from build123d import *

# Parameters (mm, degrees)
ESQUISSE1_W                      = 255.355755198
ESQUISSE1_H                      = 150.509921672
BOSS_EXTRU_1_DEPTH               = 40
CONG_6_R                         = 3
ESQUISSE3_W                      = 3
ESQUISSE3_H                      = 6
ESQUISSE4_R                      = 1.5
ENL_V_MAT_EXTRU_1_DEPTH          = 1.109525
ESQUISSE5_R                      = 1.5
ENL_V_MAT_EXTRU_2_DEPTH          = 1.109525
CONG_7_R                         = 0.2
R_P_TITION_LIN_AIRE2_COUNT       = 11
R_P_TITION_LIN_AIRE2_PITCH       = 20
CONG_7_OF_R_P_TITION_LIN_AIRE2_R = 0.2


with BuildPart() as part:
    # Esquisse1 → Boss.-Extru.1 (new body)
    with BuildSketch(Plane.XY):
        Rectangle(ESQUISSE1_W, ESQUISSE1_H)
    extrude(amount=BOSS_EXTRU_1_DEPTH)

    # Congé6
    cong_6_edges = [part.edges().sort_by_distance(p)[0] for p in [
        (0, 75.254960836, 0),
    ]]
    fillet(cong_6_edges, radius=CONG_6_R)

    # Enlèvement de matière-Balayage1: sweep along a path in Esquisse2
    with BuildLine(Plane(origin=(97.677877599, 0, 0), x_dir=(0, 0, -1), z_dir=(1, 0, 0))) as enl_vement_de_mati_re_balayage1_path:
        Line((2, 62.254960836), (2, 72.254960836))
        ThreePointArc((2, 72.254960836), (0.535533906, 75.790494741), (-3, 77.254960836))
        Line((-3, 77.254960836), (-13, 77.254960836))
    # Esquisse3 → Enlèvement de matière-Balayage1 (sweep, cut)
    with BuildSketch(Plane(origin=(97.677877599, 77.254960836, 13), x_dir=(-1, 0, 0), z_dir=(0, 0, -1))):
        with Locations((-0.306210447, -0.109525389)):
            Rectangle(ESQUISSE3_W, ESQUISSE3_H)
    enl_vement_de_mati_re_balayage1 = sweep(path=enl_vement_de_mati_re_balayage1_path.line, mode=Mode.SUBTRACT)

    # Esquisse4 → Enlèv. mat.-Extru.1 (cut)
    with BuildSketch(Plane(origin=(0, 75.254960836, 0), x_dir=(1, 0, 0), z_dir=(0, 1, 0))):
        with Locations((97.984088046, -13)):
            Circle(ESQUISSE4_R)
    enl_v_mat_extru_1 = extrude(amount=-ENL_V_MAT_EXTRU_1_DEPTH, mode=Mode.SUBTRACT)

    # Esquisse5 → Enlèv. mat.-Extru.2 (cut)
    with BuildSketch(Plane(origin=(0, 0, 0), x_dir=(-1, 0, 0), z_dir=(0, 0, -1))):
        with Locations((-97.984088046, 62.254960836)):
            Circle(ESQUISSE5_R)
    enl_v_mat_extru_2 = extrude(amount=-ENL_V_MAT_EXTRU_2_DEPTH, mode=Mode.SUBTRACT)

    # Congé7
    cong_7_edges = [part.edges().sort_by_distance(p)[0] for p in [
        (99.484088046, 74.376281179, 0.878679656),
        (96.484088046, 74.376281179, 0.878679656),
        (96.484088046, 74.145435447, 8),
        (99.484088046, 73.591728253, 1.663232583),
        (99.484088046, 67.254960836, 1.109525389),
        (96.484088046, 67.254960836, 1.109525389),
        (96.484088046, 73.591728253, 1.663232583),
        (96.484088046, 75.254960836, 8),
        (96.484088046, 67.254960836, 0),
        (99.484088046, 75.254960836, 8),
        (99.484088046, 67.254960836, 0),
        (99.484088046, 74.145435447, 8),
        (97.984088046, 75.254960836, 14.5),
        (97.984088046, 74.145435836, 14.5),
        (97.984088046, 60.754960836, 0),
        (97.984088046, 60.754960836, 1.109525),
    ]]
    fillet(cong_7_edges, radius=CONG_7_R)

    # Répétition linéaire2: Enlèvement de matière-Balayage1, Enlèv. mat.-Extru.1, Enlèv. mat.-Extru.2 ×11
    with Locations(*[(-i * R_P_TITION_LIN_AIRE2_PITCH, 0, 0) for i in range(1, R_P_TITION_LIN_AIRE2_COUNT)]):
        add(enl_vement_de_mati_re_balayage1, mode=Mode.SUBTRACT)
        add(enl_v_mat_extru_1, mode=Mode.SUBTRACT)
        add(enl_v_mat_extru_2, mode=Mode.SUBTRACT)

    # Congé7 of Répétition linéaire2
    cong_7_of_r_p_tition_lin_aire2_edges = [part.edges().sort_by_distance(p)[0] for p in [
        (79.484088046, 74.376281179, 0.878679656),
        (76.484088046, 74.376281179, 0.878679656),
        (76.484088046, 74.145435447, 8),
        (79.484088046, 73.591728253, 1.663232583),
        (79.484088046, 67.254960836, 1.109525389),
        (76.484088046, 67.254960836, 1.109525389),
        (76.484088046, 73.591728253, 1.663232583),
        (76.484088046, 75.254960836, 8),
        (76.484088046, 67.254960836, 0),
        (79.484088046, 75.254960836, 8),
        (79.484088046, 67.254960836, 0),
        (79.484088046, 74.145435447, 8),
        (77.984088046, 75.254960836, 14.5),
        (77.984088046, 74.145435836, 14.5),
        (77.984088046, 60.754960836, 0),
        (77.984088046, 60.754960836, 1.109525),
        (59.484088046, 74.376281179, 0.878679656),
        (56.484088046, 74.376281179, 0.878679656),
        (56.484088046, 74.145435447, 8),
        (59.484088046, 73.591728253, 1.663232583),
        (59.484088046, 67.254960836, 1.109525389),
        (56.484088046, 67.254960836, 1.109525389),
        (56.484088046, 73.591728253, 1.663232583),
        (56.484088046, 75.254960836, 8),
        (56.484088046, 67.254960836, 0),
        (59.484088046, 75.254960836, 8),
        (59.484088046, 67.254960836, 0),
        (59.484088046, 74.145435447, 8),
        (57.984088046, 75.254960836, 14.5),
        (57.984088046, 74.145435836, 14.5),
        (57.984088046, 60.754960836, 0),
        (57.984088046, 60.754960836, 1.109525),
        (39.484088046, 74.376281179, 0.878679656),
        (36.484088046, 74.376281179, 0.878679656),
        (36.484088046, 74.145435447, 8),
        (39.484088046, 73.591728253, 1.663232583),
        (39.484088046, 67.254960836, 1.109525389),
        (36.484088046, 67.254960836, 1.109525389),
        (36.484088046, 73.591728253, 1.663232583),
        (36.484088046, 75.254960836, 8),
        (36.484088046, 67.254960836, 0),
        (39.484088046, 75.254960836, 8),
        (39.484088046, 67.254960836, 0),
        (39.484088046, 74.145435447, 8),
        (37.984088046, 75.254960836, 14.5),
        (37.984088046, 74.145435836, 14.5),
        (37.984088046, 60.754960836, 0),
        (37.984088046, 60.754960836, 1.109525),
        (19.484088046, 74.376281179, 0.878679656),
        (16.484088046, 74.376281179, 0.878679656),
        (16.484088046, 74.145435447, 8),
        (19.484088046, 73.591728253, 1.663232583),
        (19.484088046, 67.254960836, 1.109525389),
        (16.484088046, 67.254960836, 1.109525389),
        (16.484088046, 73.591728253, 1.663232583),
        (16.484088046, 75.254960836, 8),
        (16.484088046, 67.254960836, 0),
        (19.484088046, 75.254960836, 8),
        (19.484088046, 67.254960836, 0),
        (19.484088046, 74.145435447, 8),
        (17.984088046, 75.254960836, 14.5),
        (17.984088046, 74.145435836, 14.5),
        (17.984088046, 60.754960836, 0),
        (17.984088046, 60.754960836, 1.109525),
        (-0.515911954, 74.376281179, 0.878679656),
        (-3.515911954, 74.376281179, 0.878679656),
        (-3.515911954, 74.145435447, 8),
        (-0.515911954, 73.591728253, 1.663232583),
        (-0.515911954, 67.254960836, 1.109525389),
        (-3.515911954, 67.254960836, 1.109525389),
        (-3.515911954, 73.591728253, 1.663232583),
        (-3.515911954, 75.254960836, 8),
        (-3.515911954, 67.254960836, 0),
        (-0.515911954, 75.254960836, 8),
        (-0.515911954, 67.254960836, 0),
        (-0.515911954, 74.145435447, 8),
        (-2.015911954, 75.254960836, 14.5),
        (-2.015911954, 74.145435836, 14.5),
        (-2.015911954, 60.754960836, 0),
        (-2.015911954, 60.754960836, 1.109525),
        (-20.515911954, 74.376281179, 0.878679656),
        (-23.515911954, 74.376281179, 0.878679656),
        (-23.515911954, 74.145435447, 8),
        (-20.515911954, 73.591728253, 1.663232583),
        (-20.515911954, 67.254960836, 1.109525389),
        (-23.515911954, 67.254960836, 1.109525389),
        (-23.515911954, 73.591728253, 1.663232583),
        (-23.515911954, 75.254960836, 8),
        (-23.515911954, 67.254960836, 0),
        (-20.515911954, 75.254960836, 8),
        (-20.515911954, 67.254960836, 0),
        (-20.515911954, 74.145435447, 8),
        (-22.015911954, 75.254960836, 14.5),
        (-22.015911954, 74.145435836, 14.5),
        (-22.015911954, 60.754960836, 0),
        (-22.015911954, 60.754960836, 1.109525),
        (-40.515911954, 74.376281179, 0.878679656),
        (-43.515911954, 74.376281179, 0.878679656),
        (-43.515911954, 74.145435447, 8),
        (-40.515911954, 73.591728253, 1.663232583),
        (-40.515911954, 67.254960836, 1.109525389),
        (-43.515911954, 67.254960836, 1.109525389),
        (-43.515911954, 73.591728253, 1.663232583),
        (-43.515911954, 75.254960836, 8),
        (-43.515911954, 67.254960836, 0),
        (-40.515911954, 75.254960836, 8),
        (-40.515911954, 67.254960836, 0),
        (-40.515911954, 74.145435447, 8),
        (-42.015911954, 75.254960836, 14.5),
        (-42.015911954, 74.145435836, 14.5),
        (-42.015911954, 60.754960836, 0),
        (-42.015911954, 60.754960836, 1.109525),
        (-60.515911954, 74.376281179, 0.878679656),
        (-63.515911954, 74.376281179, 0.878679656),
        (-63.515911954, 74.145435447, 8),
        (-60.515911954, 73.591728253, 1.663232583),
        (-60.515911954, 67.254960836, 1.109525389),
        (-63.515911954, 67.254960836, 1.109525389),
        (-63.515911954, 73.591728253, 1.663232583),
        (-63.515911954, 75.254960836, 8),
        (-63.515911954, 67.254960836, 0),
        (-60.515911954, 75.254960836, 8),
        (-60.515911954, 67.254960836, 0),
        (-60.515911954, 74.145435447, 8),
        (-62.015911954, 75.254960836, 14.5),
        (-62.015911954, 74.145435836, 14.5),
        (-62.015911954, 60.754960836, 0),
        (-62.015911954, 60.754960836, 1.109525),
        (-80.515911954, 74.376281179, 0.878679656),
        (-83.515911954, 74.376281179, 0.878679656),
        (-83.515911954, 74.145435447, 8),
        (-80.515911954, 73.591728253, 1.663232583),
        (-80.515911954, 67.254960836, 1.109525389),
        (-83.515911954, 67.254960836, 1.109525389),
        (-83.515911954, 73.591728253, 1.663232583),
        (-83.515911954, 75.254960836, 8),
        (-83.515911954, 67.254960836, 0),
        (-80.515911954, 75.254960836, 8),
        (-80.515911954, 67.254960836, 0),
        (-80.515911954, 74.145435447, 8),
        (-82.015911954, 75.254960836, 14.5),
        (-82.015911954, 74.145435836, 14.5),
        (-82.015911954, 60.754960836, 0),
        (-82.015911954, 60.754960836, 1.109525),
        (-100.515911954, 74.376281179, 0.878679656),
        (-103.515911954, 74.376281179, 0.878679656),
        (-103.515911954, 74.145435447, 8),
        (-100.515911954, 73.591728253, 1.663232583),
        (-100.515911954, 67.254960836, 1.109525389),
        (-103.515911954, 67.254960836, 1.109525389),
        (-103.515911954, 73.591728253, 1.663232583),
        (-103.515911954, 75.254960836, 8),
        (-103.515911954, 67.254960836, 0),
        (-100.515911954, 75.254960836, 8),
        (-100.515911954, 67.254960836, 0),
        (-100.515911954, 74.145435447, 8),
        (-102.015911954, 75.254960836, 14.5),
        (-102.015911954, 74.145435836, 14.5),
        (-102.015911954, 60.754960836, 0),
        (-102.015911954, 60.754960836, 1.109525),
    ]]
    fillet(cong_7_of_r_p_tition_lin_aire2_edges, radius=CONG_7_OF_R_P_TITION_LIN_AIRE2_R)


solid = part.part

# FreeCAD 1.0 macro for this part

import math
import FreeCAD as App
import Part
import Sketcher
from FreeCAD import Vector
Q = App.Units.Quantity


def edges_at(feature, points):
    """Names of the edges that pass closest to the given points."""
    edges = feature.Shape.Edges
    near = lambda p: min(range(len(edges)), key=lambda i: edges[i].distToShape(Part.Vertex(*p))[0])
    return sorted({f"Edge{near(p) + 1}" for p in points})


def add_polygon(sketch, points):
    """Adds a closed chain of lines whose ends are joined by coincident constraints."""
    first, n = sketch.GeometryCount, len(points)
    for a, b in zip(points, points[1:] + points[:1]):
        sketch.addGeometry(Part.LineSegment(App.Vector(*a, 0), App.Vector(*b, 0)), False)
    for i in range(n):
        sketch.addConstraint(Sketcher.Constraint("Coincident", first + i, 2, first + (i + 1) % n, 1))

doc = App.newDocument("Part")
body = doc.addObject("PartDesign::Body", "Body")

# Sketch on XY plane
sketch1 = doc.addObject("Sketcher::SketchObject", "Sketch")
body.addObject(sketch1)
sketch1.AttachmentSupport = (doc.XY_Plane, [""])
sketch1.MapMode = "FlatFace"
add_polygon(sketch1, [(-128, 75), (-128, -75), (128, -75), (128, 75)])  # lines 0-3
sketch1.addConstraint(Sketcher.Constraint("Vertical", 0))
sketch1.addConstraint(Sketcher.Constraint("Horizontal", 1))
sketch1.addConstraint(Sketcher.Constraint("Vertical", 2))
sketch1.addConstraint(Sketcher.Constraint("Horizontal", 3))
sketch1.addConstraint(Sketcher.Constraint("Symmetric", 0, 2, 2, 2, -1, 1))
sketch1.addConstraint(Sketcher.Constraint("DistanceY", 0, 2, 0, 1, Q("150.509922 mm")))
sketch1.addConstraint(Sketcher.Constraint("DistanceX", 1, 1, 1, 2, Q("255.355755 mm")))
pad1 = doc.addObject("PartDesign::Pad", "Pad")
body.addObject(pad1)
pad1.Profile = sketch1
pad1.Length = 40
doc.recompute()

fillet = doc.addObject("PartDesign::Fillet", "Fillet")
body.addObject(fillet)
fillet.Base = (pad1, edges_at(pad1, [(0, 75.255, 0)]))
fillet.Radius = 3

# Sketch on XY plane
sketch2 = doc.addObject("Sketcher::SketchObject", "Sketch001")
body.addObject(sketch2)
sketch2.AttachmentSupport = (doc.XY_Plane, [""])
sketch2.MapMode = "FlatFace"
sketch2.AttachmentOffset = App.Placement(Vector(0, 0, 13), App.Rotation())
add_polygon(sketch2, [(99.5, 80.1), (99.5, 74.1), (96.5, 74.1), (96.5, 80.1)])  # lines 0-3
sketch2.addConstraint(Sketcher.Constraint("Vertical", 0))
sketch2.addConstraint(Sketcher.Constraint("Horizontal", 1))
sketch2.addConstraint(Sketcher.Constraint("Vertical", 2))
sketch2.addConstraint(Sketcher.Constraint("Horizontal", 3))
sketch2.addConstraint(Sketcher.Constraint("DistanceX", 1, 2, 1, 1, Q("3 mm")))
sketch2.addConstraint(Sketcher.Constraint("DistanceY", 0, 2, 0, 1, Q("6 mm")))
sketch2.addConstraint(Sketcher.Constraint("DistanceX", -1, 1, 0, 2, Q("99.484088 mm")))
sketch2.addConstraint(Sketcher.Constraint("DistanceY", -1, 1, 0, 2, Q("74.145435 mm")))

# Sketch on YZ plane
sketch3 = doc.addObject("Sketcher::SketchObject", "Sketch002")
body.addObject(sketch3)
sketch3.AttachmentSupport = (doc.YZ_Plane, [""])
sketch3.MapMode = "FlatFace"
sketch3.AttachmentOffset = App.Placement(Vector(0, 0, 97.677878), App.Rotation())
sketch3.addGeometry(Part.LineSegment(Vector(62, -2, 0), Vector(72, -2, 0)), False)
sketch3.addGeometry(Part.ArcOfCircle(Part.Circle(Vector(72, 3, 0), Vector(0, 0, 1), 5), math.radians(-90), math.radians(0)), False)
sketch3.addGeometry(Part.LineSegment(Vector(77, 3, 0), Vector(77, 13, 0)), False)
sketch3.addConstraint(Sketcher.Constraint("Tangent", 0, 2, 1, 1))
sketch3.addConstraint(Sketcher.Constraint("Tangent", 1, 2, 2, 1))
sketch3.addConstraint(Sketcher.Constraint("Horizontal", 0))
sketch3.addConstraint(Sketcher.Constraint("Vertical", 2))
sketch3.addConstraint(Sketcher.Constraint("Equal", 0, 2))
sketch3.addConstraint(Sketcher.Constraint("Radius", 1, Q("5 mm")))
sketch3.addConstraint(Sketcher.Constraint("DistanceX", 0, 1, 0, 2, Q("10 mm")))
sketch3.addConstraint(Sketcher.Constraint("DistanceY", -1, 1, 1, 3, Q("3 mm")))
sketch3.addConstraint(Sketcher.Constraint("DistanceX", -1, 1, 1, 3, Q("72.254961 mm")))
doc.recompute()

subtractivepipe = doc.addObject("PartDesign::SubtractivePipe", "SubtractivePipe")
body.addObject(subtractivepipe)
subtractivepipe.Profile = sketch2
subtractivepipe.Spine = (sketch3, ["Edge1", "Edge2", "Edge3"])

# Sketch on XZ plane
sketch4 = doc.addObject("Sketcher::SketchObject", "Sketch003")
body.addObject(sketch4)
sketch4.AttachmentSupport = (doc.XZ_Plane, [""])
sketch4.MapMode = "FlatFace"
sketch4.AttachmentOffset = App.Placement(Vector(0, 0, -75.254961), App.Rotation())
sketch4.addGeometry(Part.Circle(Vector(98, 13, 0), Vector(0, 0, 1), 1.5), False)
sketch4.addConstraint(Sketcher.Constraint("Diameter", 0, Q("3 mm")))
sketch4.addConstraint(Sketcher.Constraint("DistanceY", -1, 1, 0, 3, Q("13 mm")))
sketch4.addConstraint(Sketcher.Constraint("DistanceX", -1, 1, 0, 3, Q("97.984088 mm")))
pocket1 = doc.addObject("PartDesign::Pocket", "Pocket")
body.addObject(pocket1)
pocket1.Profile = sketch4
pocket1.Length = 1.109525
pocket1.Reversed = True

# Sketch on XY plane
sketch5 = doc.addObject("Sketcher::SketchObject", "Sketch004")
body.addObject(sketch5)
sketch5.AttachmentSupport = (doc.XY_Plane, [""])
sketch5.MapMode = "FlatFace"
sketch5.addGeometry(Part.Circle(Vector(98, 62.3, 0), Vector(0, 0, 1), 1.5), False)
sketch5.addConstraint(Sketcher.Constraint("Diameter", 0, Q("3 mm")))
sketch5.addConstraint(Sketcher.Constraint("DistanceX", -1, 1, 0, 3, Q("97.984088 mm")))
sketch5.addConstraint(Sketcher.Constraint("DistanceY", -1, 1, 0, 3, Q("62.254961 mm")))
pocket2 = doc.addObject("PartDesign::Pocket", "Pocket001")
body.addObject(pocket2)
pocket2.Profile = sketch5
pocket2.Length = 1.109525
pocket2.Reversed = True
doc.recompute()

fillet2 = doc.addObject("PartDesign::Fillet", "Fillet001")
body.addObject(fillet2)
fillet2.Base = (pocket2, edges_at(pocket2, [
    (99.484, 74.376, 0.879),
    (96.484, 74.376, 0.879),
    (96.484, 74.145, 8),
    (99.484, 73.592, 1.663),
    (99.484, 67.255, 1.11),
    (96.484, 67.255, 1.11),
    (96.484, 73.592, 1.663),
    (96.484, 75.255, 8),
    (96.484, 67.255, 0),
    (99.484, 75.255, 8),
    (99.484, 67.255, 0),
    (99.484, 74.145, 8),
    (97.984, 75.255, 14.5),
    (97.984, 74.145, 14.5),
    (97.984, 60.755, 0),
    (97.984, 60.755, 1.11),
]))
fillet2.Radius = 0.2
doc.recompute()

linearpattern = doc.addObject("PartDesign::LinearPattern", "LinearPattern")
body.addObject(linearpattern)
linearpattern.Originals = [subtractivepipe, pocket1, pocket2]
linearpattern.Direction = (doc.X_Axis, [""])
linearpattern.Mode = "offset"
linearpattern.Offset = 20
linearpattern.Occurrences = 11
linearpattern.Reversed = True
body.Tip = linearpattern
doc.recompute()

fillet3 = doc.addObject("PartDesign::Fillet", "Fillet002")
body.addObject(fillet3)
fillet3.Base = (linearpattern, edges_at(linearpattern, [
    (79.484, 74.376, 0.879),
    (76.484, 74.376, 0.879),
    (76.484, 74.145, 8),
    (79.484, 73.592, 1.663),
    (79.484, 67.255, 1.11),
    (76.484, 67.255, 1.11),
    (76.484, 73.592, 1.663),
    (76.484, 75.255, 8),
    (76.484, 67.255, 0),
    (79.484, 75.255, 8),
    (79.484, 67.255, 0),
    (79.484, 74.145, 8),
    (77.984, 75.255, 14.5),
    (77.984, 74.145, 14.5),
    (77.984, 60.755, 0),
    (77.984, 60.755, 1.11),
    (59.484, 74.376, 0.879),
    (56.484, 74.376, 0.879),
    (56.484, 74.145, 8),
    (59.484, 73.592, 1.663),
    (59.484, 67.255, 1.11),
    (56.484, 67.255, 1.11),
    (56.484, 73.592, 1.663),
    (56.484, 75.255, 8),
    (56.484, 67.255, 0),
    (59.484, 75.255, 8),
    (59.484, 67.255, 0),
    (59.484, 74.145, 8),
    (57.984, 75.255, 14.5),
    (57.984, 74.145, 14.5),
    (57.984, 60.755, 0),
    (57.984, 60.755, 1.11),
    (39.484, 74.376, 0.879),
    (36.484, 74.376, 0.879),
    (36.484, 74.145, 8),
    (39.484, 73.592, 1.663),
    (39.484, 67.255, 1.11),
    (36.484, 67.255, 1.11),
    (36.484, 73.592, 1.663),
    (36.484, 75.255, 8),
    (36.484, 67.255, 0),
    (39.484, 75.255, 8),
    (39.484, 67.255, 0),
    (39.484, 74.145, 8),
    (37.984, 75.255, 14.5),
    (37.984, 74.145, 14.5),
    (37.984, 60.755, 0),
    (37.984, 60.755, 1.11),
    (19.484, 74.376, 0.879),
    (16.484, 74.376, 0.879),
    (16.484, 74.145, 8),
    (19.484, 73.592, 1.663),
    (19.484, 67.255, 1.11),
    (16.484, 67.255, 1.11),
    (16.484, 73.592, 1.663),
    (16.484, 75.255, 8),
    (16.484, 67.255, 0),
    (19.484, 75.255, 8),
    (19.484, 67.255, 0),
    (19.484, 74.145, 8),
    (17.984, 75.255, 14.5),
    (17.984, 74.145, 14.5),
    (17.984, 60.755, 0),
    (17.984, 60.755, 1.11),
    (-0.516, 74.376, 0.879),
    (-3.516, 74.376, 0.879),
    (-3.516, 74.145, 8),
    (-0.516, 73.592, 1.663),
    (-0.516, 67.255, 1.11),
    (-3.516, 67.255, 1.11),
    (-3.516, 73.592, 1.663),
    (-3.516, 75.255, 8),
    (-3.516, 67.255, 0),
    (-0.516, 75.255, 8),
    (-0.516, 67.255, 0),
    (-0.516, 74.145, 8),
    (-2.016, 75.255, 14.5),
    (-2.016, 74.145, 14.5),
    (-2.016, 60.755, 0),
    (-2.016, 60.755, 1.11),
    (-20.516, 74.376, 0.879),
    (-23.516, 74.376, 0.879),
    (-23.516, 74.145, 8),
    (-20.516, 73.592, 1.663),
    (-20.516, 67.255, 1.11),
    (-23.516, 67.255, 1.11),
    (-23.516, 73.592, 1.663),
    (-23.516, 75.255, 8),
    (-23.516, 67.255, 0),
    (-20.516, 75.255, 8),
    (-20.516, 67.255, 0),
    (-20.516, 74.145, 8),
    (-22.016, 75.255, 14.5),
    (-22.016, 74.145, 14.5),
    (-22.016, 60.755, 0),
    (-22.016, 60.755, 1.11),
    (-40.516, 74.376, 0.879),
    (-43.516, 74.376, 0.879),
    (-43.516, 74.145, 8),
    (-40.516, 73.592, 1.663),
    (-40.516, 67.255, 1.11),
    (-43.516, 67.255, 1.11),
    (-43.516, 73.592, 1.663),
    (-43.516, 75.255, 8),
    (-43.516, 67.255, 0),
    (-40.516, 75.255, 8),
    (-40.516, 67.255, 0),
    (-40.516, 74.145, 8),
    (-42.016, 75.255, 14.5),
    (-42.016, 74.145, 14.5),
    (-42.016, 60.755, 0),
    (-42.016, 60.755, 1.11),
    (-60.516, 74.376, 0.879),
    (-63.516, 74.376, 0.879),
    (-63.516, 74.145, 8),
    (-60.516, 73.592, 1.663),
    (-60.516, 67.255, 1.11),
    (-63.516, 67.255, 1.11),
    (-63.516, 73.592, 1.663),
    (-63.516, 75.255, 8),
    (-63.516, 67.255, 0),
    (-60.516, 75.255, 8),
    (-60.516, 67.255, 0),
    (-60.516, 74.145, 8),
    (-62.016, 75.255, 14.5),
    (-62.016, 74.145, 14.5),
    (-62.016, 60.755, 0),
    (-62.016, 60.755, 1.11),
    (-80.516, 74.376, 0.879),
    (-83.516, 74.376, 0.879),
    (-83.516, 74.145, 8),
    (-80.516, 73.592, 1.663),
    (-80.516, 67.255, 1.11),
    (-83.516, 67.255, 1.11),
    (-83.516, 73.592, 1.663),
    (-83.516, 75.255, 8),
    (-83.516, 67.255, 0),
    (-80.516, 75.255, 8),
    (-80.516, 67.255, 0),
    (-80.516, 74.145, 8),
    (-82.016, 75.255, 14.5),
    (-82.016, 74.145, 14.5),
    (-82.016, 60.755, 0),
    (-82.016, 60.755, 1.11),
    (-100.516, 74.376, 0.879),
    (-103.516, 74.376, 0.879),
    (-103.516, 74.145, 8),
    (-100.516, 73.592, 1.663),
    (-100.516, 67.255, 1.11),
    (-103.516, 67.255, 1.11),
    (-103.516, 73.592, 1.663),
    (-103.516, 75.255, 8),
    (-103.516, 67.255, 0),
    (-100.516, 75.255, 8),
    (-100.516, 67.255, 0),
    (-100.516, 74.145, 8),
    (-102.016, 75.255, 14.5),
    (-102.016, 74.145, 14.5),
    (-102.016, 60.755, 0),
    (-102.016, 60.755, 1.11),
]))
fillet3.Radius = 0.2

doc.recompute()
